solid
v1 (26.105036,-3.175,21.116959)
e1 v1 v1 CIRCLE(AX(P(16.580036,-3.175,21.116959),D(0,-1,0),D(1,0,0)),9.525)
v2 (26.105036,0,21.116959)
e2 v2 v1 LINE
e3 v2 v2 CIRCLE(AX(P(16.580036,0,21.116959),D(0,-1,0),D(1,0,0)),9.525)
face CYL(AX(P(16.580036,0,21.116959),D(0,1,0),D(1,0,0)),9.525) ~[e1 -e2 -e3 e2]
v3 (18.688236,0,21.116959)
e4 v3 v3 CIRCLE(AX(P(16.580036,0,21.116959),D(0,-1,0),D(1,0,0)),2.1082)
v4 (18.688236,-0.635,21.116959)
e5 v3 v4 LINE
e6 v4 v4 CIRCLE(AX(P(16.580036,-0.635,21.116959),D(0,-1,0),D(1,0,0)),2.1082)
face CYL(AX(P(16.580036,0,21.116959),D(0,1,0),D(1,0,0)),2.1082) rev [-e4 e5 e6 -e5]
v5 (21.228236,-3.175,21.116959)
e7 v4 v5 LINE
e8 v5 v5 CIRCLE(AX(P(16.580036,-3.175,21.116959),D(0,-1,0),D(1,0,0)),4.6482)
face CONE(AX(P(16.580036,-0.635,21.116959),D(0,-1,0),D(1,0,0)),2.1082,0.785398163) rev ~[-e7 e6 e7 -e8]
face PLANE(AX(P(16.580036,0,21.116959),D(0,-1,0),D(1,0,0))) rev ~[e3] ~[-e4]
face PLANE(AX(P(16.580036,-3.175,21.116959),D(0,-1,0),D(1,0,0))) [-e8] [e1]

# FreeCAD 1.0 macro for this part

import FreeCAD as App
import Part
import Sketcher

V = App.Vector
Q = App.Units.Quantity


def edges_at(feature, points):
    """Names of the edges that pass closest to the given points."""
    edges = feature.Shape.Edges
    near = lambda p: min(range(len(edges)), key=lambda i: edges[i].distToShape(Part.Vertex(*p))[0])
    return sorted({f"Edge{near(p) + 1}" for p in points})

doc = App.newDocument("Part")
params = doc.addObject("Spreadsheet::Sheet", "Params")
for row, (alias, value) in enumerate([
    ("sketch1_diameter", "0.75 in"),
    ("sketch1_diameter2", "0.166 in"),
    ("pad1_length", "0.125 in"),
    ("chamfer_size", "0.1 in"),
], start=1):
    params.set(f"A{row}", alias)
    params.set(f"B{row}", "=" + value)
    params.setAlias(f"B{row}", alias)

body = doc.addObject("PartDesign::Body", "Body")

sketch1 = body.newObject("Sketcher::SketchObject", "Sketch")
sketch1.AttachmentSupport = (doc.getObject("XZ_Plane"), [""])
sketch1.MapMode = "FlatFace"
sketch1.addGeometry(Part.Circle(V(16.6, 21.1, 0), V(0, 0, 1), 9.5), False)
sketch1.addGeometry(Part.Circle(V(16.6, 21.1, 0), V(0, 0, 1), 2.1), False)
sketch1.addConstraint(Sketcher.Constraint("Coincident", 1, 3, 0, 3))
sketch1.addConstraint(Sketcher.Constraint("Diameter", 0, Q("0.75 in")))
sketch1.addConstraint(Sketcher.Constraint("Diameter", 1, Q("0.166 in")))
sketch1.addConstraint(Sketcher.Constraint("DistanceY", -1, 1, 0, 3, Q("21.116959 mm")))
sketch1.addConstraint(Sketcher.Constraint("DistanceX", -1, 1, 0, 3, Q("16.580036 mm")))
sketch1.setExpression("Constraints[1]", "Params.sketch1_diameter")
sketch1.setExpression("Constraints[2]", "Params.sketch1_diameter2")
pad1 = body.newObject("PartDesign::Pad", "Pad")
pad1.Profile = sketch1
pad1.setExpression("Length", "Params.pad1_length")
doc.recompute()

chamfer = body.newObject("PartDesign::Chamfer", "Chamfer")
chamfer.Base = (pad1, edges_at(pad1, [(14.472, -3.175, 21.117)]))
chamfer.setExpression("Size", "Params.chamfer_size")

doc.recompute()
